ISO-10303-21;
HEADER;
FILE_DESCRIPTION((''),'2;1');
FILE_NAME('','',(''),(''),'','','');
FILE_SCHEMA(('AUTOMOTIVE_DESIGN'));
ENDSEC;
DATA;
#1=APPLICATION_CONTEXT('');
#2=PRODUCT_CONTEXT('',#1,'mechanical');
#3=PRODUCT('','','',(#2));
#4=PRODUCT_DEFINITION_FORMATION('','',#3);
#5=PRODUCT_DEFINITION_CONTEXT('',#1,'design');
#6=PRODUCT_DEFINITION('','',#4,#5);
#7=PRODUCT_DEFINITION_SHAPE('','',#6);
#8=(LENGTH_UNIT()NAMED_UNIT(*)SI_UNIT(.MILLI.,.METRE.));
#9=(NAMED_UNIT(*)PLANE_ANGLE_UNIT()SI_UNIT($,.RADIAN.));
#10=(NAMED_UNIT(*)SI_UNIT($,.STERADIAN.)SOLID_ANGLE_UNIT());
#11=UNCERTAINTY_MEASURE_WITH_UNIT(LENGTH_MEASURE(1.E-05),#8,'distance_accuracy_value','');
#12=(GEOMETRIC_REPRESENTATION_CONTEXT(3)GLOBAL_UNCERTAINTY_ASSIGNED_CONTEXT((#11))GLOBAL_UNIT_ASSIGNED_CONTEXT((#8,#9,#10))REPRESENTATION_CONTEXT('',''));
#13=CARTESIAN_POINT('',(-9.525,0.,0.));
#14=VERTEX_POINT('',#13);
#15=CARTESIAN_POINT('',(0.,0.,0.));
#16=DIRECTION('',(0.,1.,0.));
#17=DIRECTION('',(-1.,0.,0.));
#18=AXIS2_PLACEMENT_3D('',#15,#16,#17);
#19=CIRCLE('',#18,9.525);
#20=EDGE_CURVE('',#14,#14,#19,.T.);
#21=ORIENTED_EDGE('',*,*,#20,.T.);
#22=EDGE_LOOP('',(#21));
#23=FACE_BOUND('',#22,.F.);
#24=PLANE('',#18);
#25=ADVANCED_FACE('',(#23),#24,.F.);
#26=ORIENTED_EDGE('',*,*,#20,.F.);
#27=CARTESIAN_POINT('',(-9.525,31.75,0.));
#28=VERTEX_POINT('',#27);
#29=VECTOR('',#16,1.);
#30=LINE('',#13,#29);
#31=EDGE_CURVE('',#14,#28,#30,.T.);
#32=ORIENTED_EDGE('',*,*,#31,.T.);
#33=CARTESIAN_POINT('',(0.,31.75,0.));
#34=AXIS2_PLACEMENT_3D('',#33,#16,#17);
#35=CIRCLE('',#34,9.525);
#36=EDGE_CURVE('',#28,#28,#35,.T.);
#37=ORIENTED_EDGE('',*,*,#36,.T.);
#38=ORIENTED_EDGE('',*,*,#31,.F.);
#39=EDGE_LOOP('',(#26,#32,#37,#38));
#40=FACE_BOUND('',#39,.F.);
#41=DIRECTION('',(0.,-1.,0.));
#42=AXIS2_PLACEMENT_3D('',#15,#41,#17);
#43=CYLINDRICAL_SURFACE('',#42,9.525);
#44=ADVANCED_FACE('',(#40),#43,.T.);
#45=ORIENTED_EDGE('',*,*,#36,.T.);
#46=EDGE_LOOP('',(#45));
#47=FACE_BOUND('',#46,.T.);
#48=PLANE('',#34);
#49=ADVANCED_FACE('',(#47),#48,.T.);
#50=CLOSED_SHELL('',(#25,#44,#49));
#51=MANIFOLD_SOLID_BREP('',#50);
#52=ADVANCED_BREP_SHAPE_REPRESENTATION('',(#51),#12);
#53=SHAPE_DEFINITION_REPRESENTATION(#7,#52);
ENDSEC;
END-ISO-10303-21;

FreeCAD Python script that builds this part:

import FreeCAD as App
import Part
import Sketcher

V = App.Vector
Q = App.Units.Quantity

doc = App.newDocument("Part")
params = doc.addObject("Spreadsheet::Sheet", "Params")
for row, (alias, value) in enumerate([
    ("sketch1_diameter", "0.75 in"),
    ("pad1_length", "1.25 in"),
], start=1):
    params.set(f"A{row}", alias)
    params.set(f"B{row}", "=" + value)
    params.setAlias(f"B{row}", alias)

body = doc.addObject("PartDesign::Body", "Body")

sketch1 = body.newObject("Sketcher::SketchObject", "Sketch")
sketch1.AttachmentSupport = (doc.getObject("XZ_Plane"), [""])
sketch1.MapMode = "FlatFace"
sketch1.addGeometry(Part.Circle(V(0, 0, 0), V(0, 0, 1), 10), False)
sketch1.addConstraint([
    Sketcher.Constraint("Coincident", 0, 3, -1, 1),
    Sketcher.Constraint("Diameter", 0, Q("0.75 in")),
])
sketch1.setExpression("Constraints[1]", "Params.sketch1_diameter")
pad1 = body.newObject("PartDesign::Pad", "Pad")
pad1.Profile = sketch1
pad1.setExpression("Length", "Params.pad1_length")
pad1.Reversed = True

doc.recompute()
